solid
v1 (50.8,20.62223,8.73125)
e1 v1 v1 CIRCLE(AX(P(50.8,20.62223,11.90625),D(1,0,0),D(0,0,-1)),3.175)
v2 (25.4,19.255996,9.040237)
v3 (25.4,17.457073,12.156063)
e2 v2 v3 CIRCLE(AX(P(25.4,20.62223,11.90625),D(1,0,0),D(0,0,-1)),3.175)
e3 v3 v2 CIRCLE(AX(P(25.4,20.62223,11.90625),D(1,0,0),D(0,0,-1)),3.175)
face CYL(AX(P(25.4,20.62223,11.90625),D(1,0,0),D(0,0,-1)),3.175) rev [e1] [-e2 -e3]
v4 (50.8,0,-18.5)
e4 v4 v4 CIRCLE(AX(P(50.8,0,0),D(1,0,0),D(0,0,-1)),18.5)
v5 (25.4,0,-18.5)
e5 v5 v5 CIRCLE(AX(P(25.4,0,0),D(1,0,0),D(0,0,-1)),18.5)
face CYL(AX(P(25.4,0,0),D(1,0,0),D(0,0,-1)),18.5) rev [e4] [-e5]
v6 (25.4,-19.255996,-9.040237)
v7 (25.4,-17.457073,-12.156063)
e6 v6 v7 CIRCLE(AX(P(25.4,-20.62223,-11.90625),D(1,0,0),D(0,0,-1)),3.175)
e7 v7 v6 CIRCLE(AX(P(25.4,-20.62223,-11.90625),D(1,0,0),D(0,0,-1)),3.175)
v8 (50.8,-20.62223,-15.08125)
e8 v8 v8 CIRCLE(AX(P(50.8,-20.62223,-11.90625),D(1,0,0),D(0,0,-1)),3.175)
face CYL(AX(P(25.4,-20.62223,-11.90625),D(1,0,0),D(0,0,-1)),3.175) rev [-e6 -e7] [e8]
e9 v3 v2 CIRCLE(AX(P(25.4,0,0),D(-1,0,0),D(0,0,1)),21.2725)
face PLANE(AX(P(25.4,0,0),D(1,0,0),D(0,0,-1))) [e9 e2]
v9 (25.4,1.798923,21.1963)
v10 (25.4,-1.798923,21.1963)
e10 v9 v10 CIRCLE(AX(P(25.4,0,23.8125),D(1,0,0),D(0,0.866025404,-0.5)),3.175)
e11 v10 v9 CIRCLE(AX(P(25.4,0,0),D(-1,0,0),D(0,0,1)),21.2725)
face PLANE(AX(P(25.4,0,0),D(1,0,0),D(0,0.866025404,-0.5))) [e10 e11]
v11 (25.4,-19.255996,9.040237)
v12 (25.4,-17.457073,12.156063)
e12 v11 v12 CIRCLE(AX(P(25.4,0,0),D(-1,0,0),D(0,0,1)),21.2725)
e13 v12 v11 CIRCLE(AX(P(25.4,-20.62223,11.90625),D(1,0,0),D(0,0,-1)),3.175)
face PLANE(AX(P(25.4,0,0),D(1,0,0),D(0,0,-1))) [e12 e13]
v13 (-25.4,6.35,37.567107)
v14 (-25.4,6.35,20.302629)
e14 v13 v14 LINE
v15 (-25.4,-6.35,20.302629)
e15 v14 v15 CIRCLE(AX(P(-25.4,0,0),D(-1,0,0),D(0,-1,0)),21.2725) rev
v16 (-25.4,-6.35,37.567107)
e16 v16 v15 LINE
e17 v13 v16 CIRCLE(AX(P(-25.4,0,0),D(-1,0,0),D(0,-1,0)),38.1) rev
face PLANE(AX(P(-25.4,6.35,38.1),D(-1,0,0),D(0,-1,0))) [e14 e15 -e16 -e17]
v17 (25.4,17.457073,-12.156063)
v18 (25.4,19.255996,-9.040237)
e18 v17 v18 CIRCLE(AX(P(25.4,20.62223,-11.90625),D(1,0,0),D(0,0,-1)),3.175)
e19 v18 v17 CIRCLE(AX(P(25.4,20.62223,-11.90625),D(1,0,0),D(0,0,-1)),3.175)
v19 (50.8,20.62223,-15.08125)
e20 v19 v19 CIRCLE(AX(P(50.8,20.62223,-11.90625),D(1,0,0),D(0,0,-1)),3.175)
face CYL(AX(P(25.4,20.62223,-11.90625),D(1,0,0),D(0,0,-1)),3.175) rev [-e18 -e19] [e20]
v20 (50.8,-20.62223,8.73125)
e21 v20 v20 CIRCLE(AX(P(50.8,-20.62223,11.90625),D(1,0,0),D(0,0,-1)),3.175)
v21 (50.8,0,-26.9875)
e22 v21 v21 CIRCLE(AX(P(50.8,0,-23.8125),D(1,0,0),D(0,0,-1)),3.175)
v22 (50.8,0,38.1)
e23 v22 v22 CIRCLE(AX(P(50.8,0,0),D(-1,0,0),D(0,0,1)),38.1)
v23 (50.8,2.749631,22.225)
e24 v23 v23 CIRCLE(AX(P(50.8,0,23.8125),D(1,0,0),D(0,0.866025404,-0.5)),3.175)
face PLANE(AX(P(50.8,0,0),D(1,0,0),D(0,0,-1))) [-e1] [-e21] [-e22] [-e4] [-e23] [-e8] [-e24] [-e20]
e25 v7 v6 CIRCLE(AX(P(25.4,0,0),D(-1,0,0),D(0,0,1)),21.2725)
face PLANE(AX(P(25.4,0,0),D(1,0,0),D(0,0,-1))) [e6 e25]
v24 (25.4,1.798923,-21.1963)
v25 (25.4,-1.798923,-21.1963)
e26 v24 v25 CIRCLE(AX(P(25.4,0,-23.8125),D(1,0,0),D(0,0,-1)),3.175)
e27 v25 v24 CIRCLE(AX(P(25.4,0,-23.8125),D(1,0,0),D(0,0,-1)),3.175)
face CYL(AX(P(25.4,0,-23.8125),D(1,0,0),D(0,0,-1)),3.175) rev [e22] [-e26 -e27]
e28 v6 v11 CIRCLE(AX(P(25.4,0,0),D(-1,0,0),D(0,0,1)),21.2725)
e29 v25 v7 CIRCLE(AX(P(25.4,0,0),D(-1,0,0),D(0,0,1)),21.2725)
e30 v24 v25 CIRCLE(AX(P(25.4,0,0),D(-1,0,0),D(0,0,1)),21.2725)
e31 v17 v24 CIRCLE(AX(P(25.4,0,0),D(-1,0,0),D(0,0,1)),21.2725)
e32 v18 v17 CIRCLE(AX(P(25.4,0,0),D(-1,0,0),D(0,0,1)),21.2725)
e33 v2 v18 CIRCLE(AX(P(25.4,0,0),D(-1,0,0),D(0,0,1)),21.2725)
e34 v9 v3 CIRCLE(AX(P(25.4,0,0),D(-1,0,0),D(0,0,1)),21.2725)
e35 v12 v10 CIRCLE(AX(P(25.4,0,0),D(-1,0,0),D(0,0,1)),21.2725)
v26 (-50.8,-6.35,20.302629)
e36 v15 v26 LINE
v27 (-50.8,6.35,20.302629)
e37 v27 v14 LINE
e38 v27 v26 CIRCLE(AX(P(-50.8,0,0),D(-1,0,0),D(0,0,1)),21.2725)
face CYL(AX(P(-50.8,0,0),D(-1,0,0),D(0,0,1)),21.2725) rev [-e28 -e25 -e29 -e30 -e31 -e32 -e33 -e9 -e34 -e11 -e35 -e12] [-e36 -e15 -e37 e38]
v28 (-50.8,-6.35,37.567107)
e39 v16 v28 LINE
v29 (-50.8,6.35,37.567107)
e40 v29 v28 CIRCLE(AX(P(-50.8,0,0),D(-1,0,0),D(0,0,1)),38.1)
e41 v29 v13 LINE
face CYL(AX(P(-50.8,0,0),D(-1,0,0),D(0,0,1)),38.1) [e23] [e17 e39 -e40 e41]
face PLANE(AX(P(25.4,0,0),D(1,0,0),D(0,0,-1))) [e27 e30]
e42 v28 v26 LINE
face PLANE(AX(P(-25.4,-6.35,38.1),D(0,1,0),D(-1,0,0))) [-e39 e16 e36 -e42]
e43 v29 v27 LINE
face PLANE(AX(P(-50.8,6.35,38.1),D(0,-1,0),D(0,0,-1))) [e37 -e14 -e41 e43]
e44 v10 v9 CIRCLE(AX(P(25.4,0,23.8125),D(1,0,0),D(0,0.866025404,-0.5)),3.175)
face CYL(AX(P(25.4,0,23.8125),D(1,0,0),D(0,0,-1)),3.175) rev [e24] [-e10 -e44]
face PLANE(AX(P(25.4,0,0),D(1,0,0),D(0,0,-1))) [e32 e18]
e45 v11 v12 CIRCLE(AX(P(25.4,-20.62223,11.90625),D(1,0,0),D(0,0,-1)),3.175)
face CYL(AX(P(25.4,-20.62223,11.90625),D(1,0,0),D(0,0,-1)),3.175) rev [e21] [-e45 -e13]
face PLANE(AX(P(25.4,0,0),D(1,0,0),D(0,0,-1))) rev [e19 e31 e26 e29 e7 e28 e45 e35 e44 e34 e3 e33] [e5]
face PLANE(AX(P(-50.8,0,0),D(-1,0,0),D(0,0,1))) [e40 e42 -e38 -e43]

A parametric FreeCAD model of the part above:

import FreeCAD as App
import Part
import Sketcher
from FreeCAD import Vector
Q = App.Units.Quantity

doc = App.newDocument("Part")
body = doc.addObject("PartDesign::Body", "Body")

sketch1 = body.newObject("Sketcher::SketchObject", "Sketch")
sketch1.AttachmentSupport = (doc.getObject("XY_Plane"), [""])
sketch1.MapMode = "FlatFace"
sketch1.addGeometry([
    Part.LineSegment(Vector(-51, 38, 0), Vector(-51, 21, 0)),
    Part.LineSegment(Vector(-51, 21, 0), Vector(25, 21, 0)),
    Part.LineSegment(Vector(25, 21, 0), Vector(25, 16, 0)),
    Part.LineSegment(Vector(25, 16, 0), Vector(51, 16, 0)),
    Part.LineSegment(Vector(51, 16, 0), Vector(51, 38, 0)),
    Part.LineSegment(Vector(51, 38, 0), Vector(-51, 38, 0)),
], False)
sketch1.addConstraint([
    Sketcher.Constraint("Coincident", 0, 2, 1, 1),
    Sketcher.Constraint("Coincident", 1, 2, 2, 1),
    Sketcher.Constraint("Coincident", 2, 2, 3, 1),
    Sketcher.Constraint("Coincident", 3, 2, 4, 1),
    Sketcher.Constraint("Coincident", 4, 2, 5, 1),
    Sketcher.Constraint("Coincident", 5, 2, 0, 1),
    Sketcher.Constraint("Vertical", 0),
    Sketcher.Constraint("Horizontal", 1),
    Sketcher.Constraint("Vertical", 2),
    Sketcher.Constraint("Horizontal", 3),
    Sketcher.Constraint("Vertical", 4),
    Sketcher.Constraint("Horizontal", 5),
    Sketcher.Constraint("DistanceX", 1, 1, 1, 2, Q("3 in")),
    Sketcher.Constraint("DistanceX", 3, 1, 3, 2, Q("1 in")),
    Sketcher.Constraint("DistanceX", 0, 2, -1, 1, Q("2 in")),
    Sketcher.Constraint("DistanceY", -1, 1, 4, 2, Q("1.5 in")),
    Sketcher.Constraint("DistanceY", 4, 1, 4, 2, Q("0.875 in")),
    Sketcher.Constraint("DistanceY", 0, 2, 0, 1, Q("0.6625 in")),
])
revolution = body.newObject("PartDesign::Revolution", "Revolution")
revolution.Profile = sketch1
revolution.ReferenceAxis = (sketch1, ["H_Axis"])
revolution.Angle = 360

sketch2 = body.newObject("Sketcher::SketchObject", "Sketch001")
sketch2.AttachmentSupport = (doc.getObject("YZ_Plane"), [""])
sketch2.MapMode = "FlatFace"
sketch2.AttachmentOffset = App.Placement(Vector(0, 0, 2 * 25.4), App.Rotation())
sketch2.addGeometry([
    Part.Circle(Vector(-20.6, 11.9, 0), Vector(0, 0, 1), 3.2),
    Part.Circle(Vector(-20.6, -11.9, 0), Vector(0, 0, 1), 3.2),
    Part.Circle(Vector(0, -23.8, 0), Vector(0, 0, 1), 3.2),
    Part.Circle(Vector(20.6, -11.9, 0), Vector(0, 0, 1), 3.2),
    Part.Circle(Vector(20.6, 11.9, 0), Vector(0, 0, 1), 3.2),
    Part.Circle(Vector(0, 0, 0), Vector(0, 0, 1), 18.5),
], False)
sketch2.addConstraint([
    Sketcher.Constraint("Coincident", 5, 3, -1, 1),
    Sketcher.Constraint("Equal", 0, 1),
    Sketcher.Constraint("Equal", 1, 2),
    Sketcher.Constraint("Equal", 2, 3),
    Sketcher.Constraint("Equal", 3, 4),
    Sketcher.Constraint("Symmetric", 0, 3, 3, 3, -1, 1),
    Sketcher.Constraint("Symmetric", 1, 3, 4, 3, -1, 1),
    Sketcher.Constraint("Symmetric", 1, 3, 3, 3, -2),
    Sketcher.Constraint("PointOnObject", 2, 3, -2),
    Sketcher.Constraint("Diameter", 0, Q("0.25 in")),
    Sketcher.Constraint("Diameter", 5, Q("37 mm")),
    Sketcher.Constraint("DistanceY", -1, 1, 0, 3, Q("0.46875 in")),
    Sketcher.Constraint("DistanceY", 2, 3, -1, 1, Q("0.9375 in")),
    Sketcher.Constraint("DistanceX", 0, 3, -1, 1, Q("20.62223 mm")),
])
pocket1 = body.newObject("PartDesign::Pocket", "Pocket")
pocket1.Profile = sketch2
pocket1.Length = Q("1 in")
doc.recompute()

polarpattern = body.newObject("PartDesign::PolarPattern", "PolarPattern")
polarpattern.Originals = [pocket1]
polarpattern.Axis = (doc.getObject("X_Axis"), [""])
polarpattern.Angle = 360
polarpattern.Occurrences = 6
body.Tip = polarpattern

sketch3 = body.newObject("Sketcher::SketchObject", "Sketch002")
sketch3.AttachmentSupport = (doc.getObject("XY_Plane"), [""])
sketch3.MapMode = "FlatFace"
sketch3.addGeometry([
    Part.LineSegment(Vector(-51, 6, 0), Vector(-51, -6, 0)),
    Part.LineSegment(Vector(-51, -6, 0), Vector(-25, -6, 0)),
    Part.LineSegment(Vector(-25, -6, 0), Vector(-25, 6, 0)),
    Part.LineSegment(Vector(-25, 6, 0), Vector(-51, 6, 0)),
], False)
sketch3.addConstraint([
    Sketcher.Constraint("Coincident", 0, 2, 1, 1),
    Sketcher.Constraint("Coincident", 1, 2, 2, 1),
    Sketcher.Constraint("Coincident", 2, 2, 3, 1),
    Sketcher.Constraint("Coincident", 3, 2, 0, 1),
    Sketcher.Constraint("Vertical", 0),
    Sketcher.Constraint("Horizontal", 1),
    Sketcher.Constraint("Vertical", 2),
    Sketcher.Constraint("Horizontal", 3),
    Sketcher.Constraint("DistanceX", 1, 1, 1, 2, Q("1 in")),
    Sketcher.Constraint("DistanceY", 0, 2, 0, 1, Q("0.5 in")),
    Sketcher.Constraint("DistanceX", 0, 2, -1, 1, Q("2 in")),
    Sketcher.Constraint("DistanceY", 0, 2, -1, 1, Q("0.25 in")),
])
pocket2 = body.newObject("PartDesign::Pocket", "Pocket001")
pocket2.Profile = sketch3
pocket2.Type = "ThroughAll"
pocket2.Reversed = True

doc.recompute()
